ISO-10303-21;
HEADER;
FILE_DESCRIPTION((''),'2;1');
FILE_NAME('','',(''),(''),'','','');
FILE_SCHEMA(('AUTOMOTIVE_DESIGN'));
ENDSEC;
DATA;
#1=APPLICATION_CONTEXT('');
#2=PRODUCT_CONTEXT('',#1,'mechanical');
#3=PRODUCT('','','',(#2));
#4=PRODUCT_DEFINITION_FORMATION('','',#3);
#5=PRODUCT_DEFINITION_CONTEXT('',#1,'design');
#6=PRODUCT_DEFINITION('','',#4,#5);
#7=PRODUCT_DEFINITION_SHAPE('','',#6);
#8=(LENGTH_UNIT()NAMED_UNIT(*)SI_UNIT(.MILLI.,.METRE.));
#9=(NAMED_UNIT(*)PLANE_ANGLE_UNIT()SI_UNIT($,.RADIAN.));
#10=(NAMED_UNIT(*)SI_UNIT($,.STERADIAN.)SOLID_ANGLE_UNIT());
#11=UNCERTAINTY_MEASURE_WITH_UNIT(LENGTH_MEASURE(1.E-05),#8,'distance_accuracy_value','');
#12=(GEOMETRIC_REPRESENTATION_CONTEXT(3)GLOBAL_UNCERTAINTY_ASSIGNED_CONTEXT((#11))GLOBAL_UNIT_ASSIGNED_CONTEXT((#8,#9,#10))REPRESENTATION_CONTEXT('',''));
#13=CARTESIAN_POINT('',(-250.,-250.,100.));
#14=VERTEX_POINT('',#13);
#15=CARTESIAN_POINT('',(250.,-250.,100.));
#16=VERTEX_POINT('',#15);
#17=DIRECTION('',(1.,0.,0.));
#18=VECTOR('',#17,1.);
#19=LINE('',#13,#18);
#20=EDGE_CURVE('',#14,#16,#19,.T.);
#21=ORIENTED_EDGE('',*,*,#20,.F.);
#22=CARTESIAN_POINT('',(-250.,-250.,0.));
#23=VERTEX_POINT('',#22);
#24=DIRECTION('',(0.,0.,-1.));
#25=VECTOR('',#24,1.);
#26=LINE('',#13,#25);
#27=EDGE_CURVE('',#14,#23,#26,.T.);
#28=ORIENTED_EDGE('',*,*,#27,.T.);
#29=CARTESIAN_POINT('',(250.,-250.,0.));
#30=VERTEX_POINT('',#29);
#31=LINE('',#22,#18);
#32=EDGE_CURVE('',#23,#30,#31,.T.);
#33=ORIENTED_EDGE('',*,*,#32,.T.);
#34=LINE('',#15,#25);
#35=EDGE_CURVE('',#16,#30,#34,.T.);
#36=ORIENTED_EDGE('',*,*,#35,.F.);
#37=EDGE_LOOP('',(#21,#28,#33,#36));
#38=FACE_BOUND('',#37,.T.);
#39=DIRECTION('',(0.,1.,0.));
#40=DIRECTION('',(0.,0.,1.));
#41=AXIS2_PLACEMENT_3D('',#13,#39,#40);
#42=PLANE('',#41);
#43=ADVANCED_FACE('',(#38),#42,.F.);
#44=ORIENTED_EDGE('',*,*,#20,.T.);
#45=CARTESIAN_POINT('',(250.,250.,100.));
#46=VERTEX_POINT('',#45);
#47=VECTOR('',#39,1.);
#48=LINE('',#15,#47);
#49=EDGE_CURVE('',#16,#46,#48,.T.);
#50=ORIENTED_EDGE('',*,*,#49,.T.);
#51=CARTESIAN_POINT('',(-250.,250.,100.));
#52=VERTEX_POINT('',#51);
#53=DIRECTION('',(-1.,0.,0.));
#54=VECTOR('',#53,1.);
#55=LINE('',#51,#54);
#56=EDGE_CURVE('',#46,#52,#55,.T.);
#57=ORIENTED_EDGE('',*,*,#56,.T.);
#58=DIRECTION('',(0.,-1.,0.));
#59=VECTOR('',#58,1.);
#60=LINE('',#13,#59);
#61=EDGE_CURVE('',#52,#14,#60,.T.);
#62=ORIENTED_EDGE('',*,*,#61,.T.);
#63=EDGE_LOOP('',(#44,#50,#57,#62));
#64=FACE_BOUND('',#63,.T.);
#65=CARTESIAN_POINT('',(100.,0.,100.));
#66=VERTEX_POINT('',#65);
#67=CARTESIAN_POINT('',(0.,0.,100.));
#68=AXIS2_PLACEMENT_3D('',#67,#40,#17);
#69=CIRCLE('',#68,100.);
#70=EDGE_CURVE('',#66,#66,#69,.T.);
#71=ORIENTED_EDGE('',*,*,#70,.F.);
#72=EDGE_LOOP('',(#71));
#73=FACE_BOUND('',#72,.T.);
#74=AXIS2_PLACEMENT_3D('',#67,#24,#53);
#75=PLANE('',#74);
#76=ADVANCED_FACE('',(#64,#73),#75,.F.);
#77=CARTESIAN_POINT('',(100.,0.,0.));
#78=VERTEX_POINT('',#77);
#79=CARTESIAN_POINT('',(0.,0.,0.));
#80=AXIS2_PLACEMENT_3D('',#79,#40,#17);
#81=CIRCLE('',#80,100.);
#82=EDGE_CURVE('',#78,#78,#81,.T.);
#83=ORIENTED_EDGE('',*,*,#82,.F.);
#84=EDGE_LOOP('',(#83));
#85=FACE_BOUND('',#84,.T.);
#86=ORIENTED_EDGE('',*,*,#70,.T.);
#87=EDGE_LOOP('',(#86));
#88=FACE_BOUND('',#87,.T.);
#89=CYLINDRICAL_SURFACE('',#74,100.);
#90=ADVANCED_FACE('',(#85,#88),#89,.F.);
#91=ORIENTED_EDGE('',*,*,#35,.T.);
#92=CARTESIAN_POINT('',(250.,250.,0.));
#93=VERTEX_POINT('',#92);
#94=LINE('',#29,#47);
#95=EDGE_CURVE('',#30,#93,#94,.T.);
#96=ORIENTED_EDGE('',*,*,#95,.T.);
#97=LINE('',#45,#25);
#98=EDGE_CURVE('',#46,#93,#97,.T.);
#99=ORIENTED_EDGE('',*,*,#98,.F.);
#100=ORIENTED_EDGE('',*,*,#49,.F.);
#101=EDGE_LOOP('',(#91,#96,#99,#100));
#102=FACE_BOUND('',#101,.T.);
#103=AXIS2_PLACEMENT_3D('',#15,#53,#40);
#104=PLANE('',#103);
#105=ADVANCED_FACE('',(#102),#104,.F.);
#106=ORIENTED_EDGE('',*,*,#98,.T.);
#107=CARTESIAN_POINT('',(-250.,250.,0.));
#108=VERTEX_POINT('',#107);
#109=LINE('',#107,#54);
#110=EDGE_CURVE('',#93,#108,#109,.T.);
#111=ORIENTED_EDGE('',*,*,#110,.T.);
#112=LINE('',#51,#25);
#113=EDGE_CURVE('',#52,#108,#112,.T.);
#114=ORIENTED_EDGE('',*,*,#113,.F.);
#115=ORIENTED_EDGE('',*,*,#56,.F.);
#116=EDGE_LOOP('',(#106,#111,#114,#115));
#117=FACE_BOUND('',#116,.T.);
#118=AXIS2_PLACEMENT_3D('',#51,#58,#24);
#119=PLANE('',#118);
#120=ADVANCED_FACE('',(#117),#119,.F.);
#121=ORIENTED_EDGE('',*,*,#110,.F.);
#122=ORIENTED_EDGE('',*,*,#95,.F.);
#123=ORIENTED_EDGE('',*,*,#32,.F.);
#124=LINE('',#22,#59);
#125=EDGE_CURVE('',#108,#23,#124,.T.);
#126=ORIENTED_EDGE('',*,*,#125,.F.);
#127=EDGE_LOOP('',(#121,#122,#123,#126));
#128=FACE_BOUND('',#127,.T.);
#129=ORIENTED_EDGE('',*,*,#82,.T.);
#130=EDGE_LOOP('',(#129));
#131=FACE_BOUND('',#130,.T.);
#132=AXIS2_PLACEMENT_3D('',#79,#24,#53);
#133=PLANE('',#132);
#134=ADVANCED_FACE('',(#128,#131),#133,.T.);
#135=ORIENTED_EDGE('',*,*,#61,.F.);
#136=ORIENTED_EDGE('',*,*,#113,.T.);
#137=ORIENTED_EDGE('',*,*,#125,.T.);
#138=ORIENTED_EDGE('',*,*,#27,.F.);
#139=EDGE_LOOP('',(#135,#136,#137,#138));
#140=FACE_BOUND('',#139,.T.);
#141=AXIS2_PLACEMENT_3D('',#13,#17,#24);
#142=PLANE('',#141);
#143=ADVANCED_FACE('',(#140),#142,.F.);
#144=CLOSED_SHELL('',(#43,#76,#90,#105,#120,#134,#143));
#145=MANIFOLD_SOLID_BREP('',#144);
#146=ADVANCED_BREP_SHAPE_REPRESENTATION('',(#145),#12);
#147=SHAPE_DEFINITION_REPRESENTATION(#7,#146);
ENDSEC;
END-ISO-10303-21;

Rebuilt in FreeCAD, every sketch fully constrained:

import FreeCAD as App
import Part
import Sketcher

V = App.Vector


def add_polygon(sketch, points):
    """Adds a closed chain of lines whose ends are joined by coincident constraints."""
    first, n = sketch.GeometryCount, len(points)
    for a, b in zip(points, points[1:] + points[:1]):
        sketch.addGeometry(Part.LineSegment(App.Vector(*a, 0), App.Vector(*b, 0)), False)
    for i in range(n):
        sketch.addConstraint(Sketcher.Constraint("Coincident", first + i, 2, first + (i + 1) % n, 1))

doc = App.newDocument("Part")
params = doc.addObject("Spreadsheet::Sheet", "Params")
for row, (alias, value) in enumerate([
    ("sketch1_width", "500 mm"),
    ("pad1_length", "100 mm"),
    ("sketch2_diameter", "200 mm"),
], start=1):
    params.set(f"A{row}", alias)
    params.set(f"B{row}", "=" + value)
    params.setAlias(f"B{row}", alias)

body = doc.addObject("PartDesign::Body", "Body")

sketch1 = body.newObject("Sketcher::SketchObject", "Sketch")
sketch1.AttachmentSupport = (doc.getObject("XY_Plane"), [""])
sketch1.MapMode = "FlatFace"
add_polygon(sketch1, [(-250, 250), (-250, -250), (250, -250), (250, 250)])
sketch1.addConstraint([
    Sketcher.Constraint("Vertical", 0),
    Sketcher.Constraint("Horizontal", 1),
    Sketcher.Constraint("Vertical", 2),
    Sketcher.Constraint("Horizontal", 3),
    Sketcher.Constraint("Symmetric", 0, 2, 2, 2, -1, 1),
    Sketcher.Constraint("Equal", 3, 0),
    Sketcher.Constraint("DistanceX", 1, 1, 1, 2, 500.0),
])
sketch1.setExpression("Constraints[10]", "Params.sketch1_width")
pad1 = body.newObject("PartDesign::Pad", "Pad")
pad1.Profile = sketch1
pad1.setExpression("Length", "Params.pad1_length")

sketch2 = body.newObject("Sketcher::SketchObject", "Sketch001")
sketch2.AttachmentSupport = (doc.getObject("XY_Plane"), [""])
sketch2.MapMode = "FlatFace"
sketch2.addGeometry(Part.Circle(V(0, 0, 0), V(0, 0, 1), 100), False)
sketch2.addConstraint([
    Sketcher.Constraint("Coincident", 0, 3, -1, 1),
    Sketcher.Constraint("Diameter", 0, 200.0),
])
sketch2.setExpression("Constraints[1]", "Params.sketch2_diameter")
pocket1 = body.newObject("PartDesign::Pocket", "Pocket")
pocket1.Profile = sketch2
pocket1.Type = "ThroughAll"
pocket1.Reversed = True

doc.recompute()
